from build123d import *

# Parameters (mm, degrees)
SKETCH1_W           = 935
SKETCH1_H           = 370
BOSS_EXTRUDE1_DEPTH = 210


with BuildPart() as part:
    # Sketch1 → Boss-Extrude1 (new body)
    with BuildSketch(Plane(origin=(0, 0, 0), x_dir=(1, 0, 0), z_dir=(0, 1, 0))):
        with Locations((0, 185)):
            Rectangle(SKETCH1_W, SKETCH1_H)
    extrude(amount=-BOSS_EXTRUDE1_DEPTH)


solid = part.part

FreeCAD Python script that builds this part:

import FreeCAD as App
import Part
import Sketcher
from FreeCAD import Vector
Q = App.Units.Quantity


def add_polygon(sketch, points):
    """Adds a closed chain of lines whose ends are joined by coincident constraints."""
    first, n = sketch.GeometryCount, len(points)
    for a, b in zip(points, points[1:] + points[:1]):
        sketch.addGeometry(Part.LineSegment(App.Vector(*a, 0), App.Vector(*b, 0)), False)
    for i in range(n):
        sketch.addConstraint(Sketcher.Constraint("Coincident", first + i, 2, first + (i + 1) % n, 1))

doc = App.newDocument("Part")
body = doc.addObject("PartDesign::Body", "Body")

sketch1 = body.newObject("Sketcher::SketchObject", "Sketch")
sketch1.AttachmentSupport = (doc.getObject("XZ_Plane"), [""])
sketch1.MapMode = "FlatFace"
add_polygon(sketch1, [(-468, -370), (-468, 0), (468, 0), (468, -370)])
sketch1.addConstraint([
    Sketcher.Constraint("Vertical", 0),
    Sketcher.Constraint("Horizontal", 1),
    Sketcher.Constraint("Vertical", 2),
    Sketcher.Constraint("Horizontal", 3),
    Sketcher.Constraint("Symmetric", 0, 2, 1, 2, -1, 1),
    Sketcher.Constraint("DistanceX", 1, 1, 1, 2, Q("935 mm")),
    Sketcher.Constraint("DistanceY", 0, 1, 0, 2, Q("370 mm")),
])
pad1 = body.newObject("PartDesign::Pad", "Pad")
pad1.Profile = sketch1
pad1.Length = 210

doc.recompute()
